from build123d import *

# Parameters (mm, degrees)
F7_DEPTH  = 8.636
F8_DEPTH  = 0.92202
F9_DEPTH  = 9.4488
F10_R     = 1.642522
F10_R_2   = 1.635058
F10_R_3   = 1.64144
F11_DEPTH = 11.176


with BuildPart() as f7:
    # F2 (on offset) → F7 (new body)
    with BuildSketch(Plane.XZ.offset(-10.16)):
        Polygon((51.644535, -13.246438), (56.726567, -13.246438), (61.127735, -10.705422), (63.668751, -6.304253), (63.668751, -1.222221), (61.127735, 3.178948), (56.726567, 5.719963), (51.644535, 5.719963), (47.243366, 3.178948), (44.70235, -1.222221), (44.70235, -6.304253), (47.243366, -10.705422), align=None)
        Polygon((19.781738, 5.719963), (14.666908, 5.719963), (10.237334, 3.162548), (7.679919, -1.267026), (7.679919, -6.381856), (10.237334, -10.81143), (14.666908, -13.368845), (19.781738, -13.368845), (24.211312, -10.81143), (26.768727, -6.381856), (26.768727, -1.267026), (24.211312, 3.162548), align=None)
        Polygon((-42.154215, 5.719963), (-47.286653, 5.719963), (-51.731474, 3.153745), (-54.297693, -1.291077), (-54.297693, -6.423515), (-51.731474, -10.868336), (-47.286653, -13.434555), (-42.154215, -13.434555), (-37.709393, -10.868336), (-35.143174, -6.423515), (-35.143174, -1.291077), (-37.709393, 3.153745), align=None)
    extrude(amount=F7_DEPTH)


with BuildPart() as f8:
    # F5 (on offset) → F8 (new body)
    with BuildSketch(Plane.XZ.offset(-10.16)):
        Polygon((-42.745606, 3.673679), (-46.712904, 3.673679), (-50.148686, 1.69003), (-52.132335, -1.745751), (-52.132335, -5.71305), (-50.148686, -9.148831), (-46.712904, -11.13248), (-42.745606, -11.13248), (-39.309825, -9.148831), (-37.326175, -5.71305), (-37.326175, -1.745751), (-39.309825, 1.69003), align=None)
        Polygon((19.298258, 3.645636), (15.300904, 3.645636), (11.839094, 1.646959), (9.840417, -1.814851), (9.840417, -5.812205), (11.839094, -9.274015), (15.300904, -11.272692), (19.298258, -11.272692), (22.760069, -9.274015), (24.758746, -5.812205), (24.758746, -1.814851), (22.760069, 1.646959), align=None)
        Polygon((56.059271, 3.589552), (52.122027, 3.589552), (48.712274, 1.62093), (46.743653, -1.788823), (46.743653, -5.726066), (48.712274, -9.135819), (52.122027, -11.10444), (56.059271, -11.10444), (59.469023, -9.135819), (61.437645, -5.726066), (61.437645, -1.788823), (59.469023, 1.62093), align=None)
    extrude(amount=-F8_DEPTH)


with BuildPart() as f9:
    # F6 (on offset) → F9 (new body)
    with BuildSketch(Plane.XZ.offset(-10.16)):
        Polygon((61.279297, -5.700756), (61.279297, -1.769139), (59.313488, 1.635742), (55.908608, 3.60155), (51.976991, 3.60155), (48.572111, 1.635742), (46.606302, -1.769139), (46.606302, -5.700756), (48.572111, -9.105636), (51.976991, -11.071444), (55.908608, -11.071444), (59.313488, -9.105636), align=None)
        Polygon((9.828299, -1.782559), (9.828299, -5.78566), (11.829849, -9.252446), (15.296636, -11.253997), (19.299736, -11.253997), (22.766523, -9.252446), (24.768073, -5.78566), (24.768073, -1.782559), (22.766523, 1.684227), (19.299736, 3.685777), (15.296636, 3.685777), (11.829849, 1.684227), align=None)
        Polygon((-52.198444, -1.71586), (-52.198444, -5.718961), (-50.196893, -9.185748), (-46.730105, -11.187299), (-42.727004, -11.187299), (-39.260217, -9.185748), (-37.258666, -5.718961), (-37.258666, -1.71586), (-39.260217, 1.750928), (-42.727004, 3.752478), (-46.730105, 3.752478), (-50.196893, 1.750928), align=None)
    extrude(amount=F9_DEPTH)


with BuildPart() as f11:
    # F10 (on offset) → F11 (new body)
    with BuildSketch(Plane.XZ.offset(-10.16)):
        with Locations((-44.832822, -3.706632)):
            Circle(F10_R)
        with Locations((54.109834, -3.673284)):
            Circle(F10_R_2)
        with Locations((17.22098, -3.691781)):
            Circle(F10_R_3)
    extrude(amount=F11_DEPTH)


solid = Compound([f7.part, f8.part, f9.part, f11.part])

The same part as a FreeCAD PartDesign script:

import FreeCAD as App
import Part
import Sketcher
from FreeCAD import Vector
Q = App.Units.Quantity

doc = App.newDocument("Part")
body = doc.addObject("PartDesign::Body", "Body")
body.AllowCompound = True

sketch1 = body.newObject("Sketcher::SketchObject", "Sketch")
sketch1.AttachmentSupport = (doc.getObject("XZ_Plane"), [""])
sketch1.MapMode = "FlatFace"
sketch1.AttachmentOffset = App.Placement(Vector(0, 0, -0.4 * 25.4), App.Rotation())
sketch1.addGeometry([
    Part.LineSegment(Vector(51.644535, -13.246438, 0), Vector(56.726567, -13.246438, 0)),
    Part.LineSegment(Vector(56.726567, -13.246438, 0), Vector(61.127735, -10.705422, 0)),
    Part.LineSegment(Vector(61.127735, -10.705422, 0), Vector(63.668751, -6.304253, 0)),
    Part.LineSegment(Vector(63.668751, -6.304253, 0), Vector(63.668751, -1.222221, 0)),
    Part.LineSegment(Vector(63.668751, -1.222221, 0), Vector(61.127735, 3.178948, 0)),
    Part.LineSegment(Vector(61.127735, 3.178948, 0), Vector(56.726567, 5.719963, 0)),
    Part.LineSegment(Vector(56.726567, 5.719963, 0), Vector(51.644535, 5.719963, 0)),
    Part.LineSegment(Vector(51.644535, 5.719963, 0), Vector(47.243366, 3.178948, 0)),
    Part.LineSegment(Vector(47.243366, 3.178948, 0), Vector(44.70235, -1.222221, 0)),
    Part.LineSegment(Vector(44.70235, -1.222221, 0), Vector(44.70235, -6.304253, 0)),
    Part.LineSegment(Vector(44.70235, -6.304253, 0), Vector(47.243366, -10.705422, 0)),
    Part.LineSegment(Vector(47.243366, -10.705422, 0), Vector(51.644535, -13.246438, 0)),
    Part.LineSegment(Vector(19.781738, 5.719963, 0), Vector(14.666908, 5.719963, 0)),
    Part.LineSegment(Vector(14.666908, 5.719963, 0), Vector(10.237334, 3.162548, 0)),
    Part.LineSegment(Vector(10.237334, 3.162548, 0), Vector(7.679919, -1.267026, 0)),
    Part.LineSegment(Vector(7.679919, -1.267026, 0), Vector(7.679919, -6.381856, 0)),
    Part.LineSegment(Vector(7.679919, -6.381856, 0), Vector(10.237334, -10.81143, 0)),
    Part.LineSegment(Vector(10.237334, -10.81143, 0), Vector(14.666908, -13.368845, 0)),
    Part.LineSegment(Vector(14.666908, -13.368845, 0), Vector(19.781738, -13.368845, 0)),
    Part.LineSegment(Vector(19.781738, -13.368845, 0), Vector(24.211312, -10.81143, 0)),
    Part.LineSegment(Vector(24.211312, -10.81143, 0), Vector(26.768727, -6.381856, 0)),
    Part.LineSegment(Vector(26.768727, -6.381856, 0), Vector(26.768727, -1.267026, 0)),
    Part.LineSegment(Vector(26.768727, -1.267026, 0), Vector(24.211312, 3.162548, 0)),
    Part.LineSegment(Vector(24.211312, 3.162548, 0), Vector(19.781738, 5.719963, 0)),
    Part.LineSegment(Vector(-42.154215, 5.719963, 0), Vector(-47.286653, 5.719963, 0)),
    Part.LineSegment(Vector(-47.286653, 5.719963, 0), Vector(-51.731474, 3.153745, 0)),
    Part.LineSegment(Vector(-51.731474, 3.153745, 0), Vector(-54.297693, -1.291077, 0)),
    Part.LineSegment(Vector(-54.297693, -1.291077, 0), Vector(-54.297693, -6.423515, 0)),
    Part.LineSegment(Vector(-54.297693, -6.423515, 0), Vector(-51.731474, -10.868336, 0)),
    Part.LineSegment(Vector(-51.731474, -10.868336, 0), Vector(-47.286653, -13.434555, 0)),
    Part.LineSegment(Vector(-47.286653, -13.434555, 0), Vector(-42.154215, -13.434555, 0)),
    Part.LineSegment(Vector(-42.154215, -13.434555, 0), Vector(-37.709393, -10.868336, 0)),
    Part.LineSegment(Vector(-37.709393, -10.868336, 0), Vector(-35.143174, -6.423515, 0)),
    Part.LineSegment(Vector(-35.143174, -6.423515, 0), Vector(-35.143174, -1.291077, 0)),
    Part.LineSegment(Vector(-35.143174, -1.291077, 0), Vector(-37.709393, 3.153745, 0)),
    Part.LineSegment(Vector(-37.709393, 3.153745, 0), Vector(-42.154215, 5.719963, 0)),
], False)
sketch1.addConstraint([
    Sketcher.Constraint("Coincident", 0, 2, 1, 1),
    Sketcher.Constraint("Coincident", 1, 2, 2, 1),
    Sketcher.Constraint("Coincident", 2, 2, 3, 1),
    Sketcher.Constraint("Coincident", 3, 2, 4, 1),
    Sketcher.Constraint("Coincident", 4, 2, 5, 1),
    Sketcher.Constraint("Coincident", 5, 2, 6, 1),
    Sketcher.Constraint("Coincident", 6, 2, 7, 1),
    Sketcher.Constraint("Coincident", 7, 2, 8, 1),
    Sketcher.Constraint("Coincident", 8, 2, 9, 1),
    Sketcher.Constraint("Coincident", 9, 2, 10, 1),
    Sketcher.Constraint("Coincident", 10, 2, 11, 1),
    Sketcher.Constraint("Coincident", 11, 2, 0, 1),
    Sketcher.Constraint("Coincident", 12, 2, 13, 1),
    Sketcher.Constraint("Coincident", 13, 2, 14, 1),
    Sketcher.Constraint("Coincident", 14, 2, 15, 1),
    Sketcher.Constraint("Coincident", 15, 2, 16, 1),
    Sketcher.Constraint("Coincident", 16, 2, 17, 1),
    Sketcher.Constraint("Coincident", 17, 2, 18, 1),
    Sketcher.Constraint("Coincident", 18, 2, 19, 1),
    Sketcher.Constraint("Coincident", 19, 2, 20, 1),
    Sketcher.Constraint("Coincident", 20, 2, 21, 1),
    Sketcher.Constraint("Coincident", 21, 2, 22, 1),
    Sketcher.Constraint("Coincident", 22, 2, 23, 1),
    Sketcher.Constraint("Coincident", 23, 2, 12, 1),
    Sketcher.Constraint("Coincident", 24, 2, 25, 1),
    Sketcher.Constraint("Coincident", 25, 2, 26, 1),
    Sketcher.Constraint("Coincident", 26, 2, 27, 1),
    Sketcher.Constraint("Coincident", 27, 2, 28, 1),
    Sketcher.Constraint("Coincident", 28, 2, 29, 1),
    Sketcher.Constraint("Coincident", 29, 2, 30, 1),
    Sketcher.Constraint("Coincident", 30, 2, 31, 1),
    Sketcher.Constraint("Coincident", 31, 2, 32, 1),
    Sketcher.Constraint("Coincident", 32, 2, 33, 1),
    Sketcher.Constraint("Coincident", 33, 2, 34, 1),
    Sketcher.Constraint("Coincident", 34, 2, 35, 1),
    Sketcher.Constraint("Coincident", 35, 2, 24, 1),
    Sketcher.Constraint("Horizontal", 0),
    Sketcher.Constraint("Vertical", 3),
    Sketcher.Constraint("Horizontal", 6),
    Sketcher.Constraint("Vertical", 9),
    Sketcher.Constraint("Horizontal", 12),
    Sketcher.Constraint("Vertical", 15),
    Sketcher.Constraint("Horizontal", 18),
    Sketcher.Constraint("Vertical", 21),
    Sketcher.Constraint("Horizontal", 24),
    Sketcher.Constraint("Vertical", 27),
    Sketcher.Constraint("Horizontal", 30),
    Sketcher.Constraint("Vertical", 33),
    Sketcher.Constraint("Perpendicular", 1, 4),
    Sketcher.Constraint("Perpendicular", 2, 5),
    Sketcher.Constraint("Perpendicular", 4, 7),
    Sketcher.Constraint("Perpendicular", 5, 8),
    Sketcher.Constraint("Perpendicular", 7, 10),
    Sketcher.Constraint("Perpendicular", 8, 11),
    Sketcher.Constraint("Perpendicular", 10, 13),
    Sketcher.Constraint("Perpendicular", 11, 14),
    Sketcher.Constraint("Perpendicular", 13, 16),
    Sketcher.Constraint("Perpendicular", 14, 17),
    Sketcher.Constraint("Perpendicular", 16, 19),
    Sketcher.Constraint("Perpendicular", 17, 20),
    Sketcher.Constraint("Perpendicular", 19, 22),
    Sketcher.Constraint("Perpendicular", 20, 23),
    Sketcher.Constraint("Perpendicular", 22, 25),
    Sketcher.Constraint("Perpendicular", 23, 26),
    Sketcher.Constraint("Perpendicular", 25, 28),
    Sketcher.Constraint("Perpendicular", 26, 29),
    Sketcher.Constraint("Perpendicular", 28, 31),
    Sketcher.Constraint("Perpendicular", 29, 32),
    Sketcher.Constraint("Perpendicular", 31, 34),
    Sketcher.Constraint("Perpendicular", 32, 35),
    Sketcher.Constraint("Horizontal", 4, 2, 7, 2),
    Sketcher.Constraint("Horizontal", 3, 2, 8, 2),
    Sketcher.Constraint("Horizontal", 2, 2, 9, 2),
    Sketcher.Constraint("Horizontal", 1, 2, 10, 2),
    Sketcher.Constraint("Horizontal", 6, 2, 12, 2),
    Sketcher.Constraint("Horizontal", 16, 2, 19, 2),
    Sketcher.Constraint("Horizontal", 15, 2, 20, 2),
    Sketcher.Constraint("Horizontal", 14, 2, 21, 2),
    Sketcher.Constraint("Horizontal", 13, 2, 22, 2),
    Sketcher.Constraint("Horizontal", 23, 2, 24, 2),
    Sketcher.Constraint("Horizontal", 28, 2, 31, 2),
    Sketcher.Constraint("Horizontal", 27, 2, 32, 2),
    Sketcher.Constraint("Horizontal", 26, 2, 33, 2),
    Sketcher.Constraint("Horizontal", 25, 2, 34, 2),
    Sketcher.Constraint("Vertical", 1, 2, 4, 2),
    Sketcher.Constraint("Vertical", 0, 2, 5, 2),
    Sketcher.Constraint("Vertical", 7, 2, 10, 2),
    Sketcher.Constraint("Vertical", 13, 2, 16, 2),
    Sketcher.Constraint("Vertical", 12, 2, 17, 2),
    Sketcher.Constraint("Vertical", 25, 2, 28, 2),
    Sketcher.Constraint("Vertical", 24, 2, 29, 2),
    Sketcher.Constraint("Equal", 6, 3),
    Sketcher.Constraint("Equal", 18, 15),
    Sketcher.Constraint("Equal", 30, 27),
    Sketcher.Constraint("Equal", 1, 2),
    Sketcher.Constraint("Equal", 13, 14),
    Sketcher.Constraint("Equal", 25, 26),
    Sketcher.Constraint("Angle", 1, Q("30.000005 deg")),
    Sketcher.Constraint("DistanceX", 12, 2, 12, 1, Q("5.11483 mm")),
    Sketcher.Constraint("DistanceX", 24, 2, 24, 1, Q("5.132438 mm")),
    Sketcher.Constraint("DistanceY", 1, 2, 3, 2, Q("9.483201 mm")),
    Sketcher.Constraint("DistanceY", 0, 2, 5, 2, Q("18.966401 mm")),
    Sketcher.Constraint("DistanceY", 9, 2, 13, 2, Q("9.466801 mm")),
    Sketcher.Constraint("DistanceY", 15, 2, 25, 2, Q("9.535601 mm")),
    Sketcher.Constraint("DistanceX", -1, 1, 2, 2, Q("63.668751 mm")),
    Sketcher.Constraint("DistanceY", 3, 2, -1, 1, Q("1.222221 mm")),
    Sketcher.Constraint("DistanceX", -1, 1, 14, 2, Q("7.679919 mm")),
    Sketcher.Constraint("DistanceX", 24, 2, 12, 2, Q("61.953561 mm")),
])
pad1 = body.newObject("PartDesign::Pad", "Pad")
pad1.Profile = sketch1
pad1.Length = Q("0.34 in")
body2 = doc.addObject("PartDesign::Body", "Body001")
body2.AllowCompound = True

sketch2 = body2.newObject("Sketcher::SketchObject", "Sketch001")
sketch2.AttachmentSupport = (doc.getObject("XZ_Plane001"), [""])
sketch2.MapMode = "FlatFace"
sketch2.AttachmentOffset = App.Placement(Vector(0, 0, -0.4 * 25.4), App.Rotation())
sketch2.addGeometry([
    Part.LineSegment(Vector(-42.745606, 3.673679, 0), Vector(-46.712904, 3.673679, 0)),
    Part.LineSegment(Vector(-46.712904, 3.673679, 0), Vector(-50.148686, 1.69003, 0)),
    Part.LineSegment(Vector(-50.148686, 1.69003, 0), Vector(-52.132335, -1.745751, 0)),
    Part.LineSegment(Vector(-52.132335, -1.745751, 0), Vector(-52.132335, -5.71305, 0)),
    Part.LineSegment(Vector(-52.132335, -5.71305, 0), Vector(-50.148686, -9.148831, 0)),
    Part.LineSegment(Vector(-50.148686, -9.148831, 0), Vector(-46.712904, -11.13248, 0)),
    Part.LineSegment(Vector(-46.712904, -11.13248, 0), Vector(-42.745606, -11.13248, 0)),
    Part.LineSegment(Vector(-42.745606, -11.13248, 0), Vector(-39.309825, -9.148831, 0)),
    Part.LineSegment(Vector(-39.309825, -9.148831, 0), Vector(-37.326175, -5.71305, 0)),
    Part.LineSegment(Vector(-37.326175, -5.71305, 0), Vector(-37.326175, -1.745751, 0)),
    Part.LineSegment(Vector(-37.326175, -1.745751, 0), Vector(-39.309825, 1.69003, 0)),
    Part.LineSegment(Vector(-39.309825, 1.69003, 0), Vector(-42.745606, 3.673679, 0)),
    Part.LineSegment(Vector(19.298258, 3.645636, 0), Vector(15.300904, 3.645636, 0)),
    Part.LineSegment(Vector(15.300904, 3.645636, 0), Vector(11.839094, 1.646959, 0)),
    Part.LineSegment(Vector(11.839094, 1.646959, 0), Vector(9.840417, -1.814851, 0)),
    Part.LineSegment(Vector(9.840417, -1.814851, 0), Vector(9.840417, -5.812205, 0)),
    Part.LineSegment(Vector(9.840417, -5.812205, 0), Vector(11.839094, -9.274015, 0)),
    Part.LineSegment(Vector(11.839094, -9.274015, 0), Vector(15.300904, -11.272692, 0)),
    Part.LineSegment(Vector(15.300904, -11.272692, 0), Vector(19.298258, -11.272692, 0)),
    Part.LineSegment(Vector(19.298258, -11.272692, 0), Vector(22.760069, -9.274015, 0)),
    Part.LineSegment(Vector(22.760069, -9.274015, 0), Vector(24.758746, -5.812205, 0)),
    Part.LineSegment(Vector(24.758746, -5.812205, 0), Vector(24.758746, -1.814851, 0)),
    Part.LineSegment(Vector(24.758746, -1.814851, 0), Vector(22.760069, 1.646959, 0)),
    Part.LineSegment(Vector(22.760069, 1.646959, 0), Vector(19.298258, 3.645636, 0)),
    Part.LineSegment(Vector(56.059271, 3.589552, 0), Vector(52.122027, 3.589552, 0)),
    Part.LineSegment(Vector(52.122027, 3.589552, 0), Vector(48.712274, 1.62093, 0)),
    Part.LineSegment(Vector(48.712274, 1.62093, 0), Vector(46.743653, -1.788823, 0)),
    Part.LineSegment(Vector(46.743653, -1.788823, 0), Vector(46.743653, -5.726066, 0)),
    Part.LineSegment(Vector(46.743653, -5.726066, 0), Vector(48.712274, -9.135819, 0)),
    Part.LineSegment(Vector(48.712274, -9.135819, 0), Vector(52.122027, -11.10444, 0)),
    Part.LineSegment(Vector(52.122027, -11.10444, 0), Vector(56.059271, -11.10444, 0)),
    Part.LineSegment(Vector(56.059271, -11.10444, 0), Vector(59.469023, -9.135819, 0)),
    Part.LineSegment(Vector(59.469023, -9.135819, 0), Vector(61.437645, -5.726066, 0)),
    Part.LineSegment(Vector(61.437645, -5.726066, 0), Vector(61.437645, -1.788823, 0)),
    Part.LineSegment(Vector(61.437645, -1.788823, 0), Vector(59.469023, 1.62093, 0)),
    Part.LineSegment(Vector(59.469023, 1.62093, 0), Vector(56.059271, 3.589552, 0)),
], False)
sketch2.addConstraint([
    Sketcher.Constraint("Coincident", 0, 2, 1, 1),
    Sketcher.Constraint("Coincident", 1, 2, 2, 1),
    Sketcher.Constraint("Coincident", 2, 2, 3, 1),
    Sketcher.Constraint("Coincident", 3, 2, 4, 1),
    Sketcher.Constraint("Coincident", 4, 2, 5, 1),
    Sketcher.Constraint("Coincident", 5, 2, 6, 1),
    Sketcher.Constraint("Coincident", 6, 2, 7, 1),
    Sketcher.Constraint("Coincident", 7, 2, 8, 1),
    Sketcher.Constraint("Coincident", 8, 2, 9, 1),
    Sketcher.Constraint("Coincident", 9, 2, 10, 1),
    Sketcher.Constraint("Coincident", 10, 2, 11, 1),
    Sketcher.Constraint("Coincident", 11, 2, 0, 1),
    Sketcher.Constraint("Coincident", 12, 2, 13, 1),
    Sketcher.Constraint("Coincident", 13, 2, 14, 1),
    Sketcher.Constraint("Coincident", 14, 2, 15, 1),
    Sketcher.Constraint("Coincident", 15, 2, 16, 1),
    Sketcher.Constraint("Coincident", 16, 2, 17, 1),
    Sketcher.Constraint("Coincident", 17, 2, 18, 1),
    Sketcher.Constraint("Coincident", 18, 2, 19, 1),
    Sketcher.Constraint("Coincident", 19, 2, 20, 1),
    Sketcher.Constraint("Coincident", 20, 2, 21, 1),
    Sketcher.Constraint("Coincident", 21, 2, 22, 1),
    Sketcher.Constraint("Coincident", 22, 2, 23, 1),
    Sketcher.Constraint("Coincident", 23, 2, 12, 1),
    Sketcher.Constraint("Coincident", 24, 2, 25, 1),
    Sketcher.Constraint("Coincident", 25, 2, 26, 1),
    Sketcher.Constraint("Coincident", 26, 2, 27, 1),
    Sketcher.Constraint("Coincident", 27, 2, 28, 1),
    Sketcher.Constraint("Coincident", 28, 2, 29, 1),
    Sketcher.Constraint("Coincident", 29, 2, 30, 1),
    Sketcher.Constraint("Coincident", 30, 2, 31, 1),
    Sketcher.Constraint("Coincident", 31, 2, 32, 1),
    Sketcher.Constraint("Coincident", 32, 2, 33, 1),
    Sketcher.Constraint("Coincident", 33, 2, 34, 1),
    Sketcher.Constraint("Coincident", 34, 2, 35, 1),
    Sketcher.Constraint("Coincident", 35, 2, 24, 1),
    Sketcher.Constraint("Horizontal", 0),
    Sketcher.Constraint("Vertical", 3),
    Sketcher.Constraint("Horizontal", 6),
    Sketcher.Constraint("Vertical", 9),
    Sketcher.Constraint("Horizontal", 12),
    Sketcher.Constraint("Vertical", 15),
    Sketcher.Constraint("Horizontal", 18),
    Sketcher.Constraint("Vertical", 21),
    Sketcher.Constraint("Horizontal", 24),
    Sketcher.Constraint("Vertical", 27),
    Sketcher.Constraint("Horizontal", 30),
    Sketcher.Constraint("Vertical", 33),
    Sketcher.Constraint("Perpendicular", 1, 4),
    Sketcher.Constraint("Perpendicular", 2, 5),
    Sketcher.Constraint("Perpendicular", 4, 7),
    Sketcher.Constraint("Perpendicular", 5, 8),
    Sketcher.Constraint("Perpendicular", 7, 10),
    Sketcher.Constraint("Perpendicular", 8, 11),
    Sketcher.Constraint("Perpendicular", 10, 13),
    Sketcher.Constraint("Perpendicular", 11, 14),
    Sketcher.Constraint("Perpendicular", 13, 16),
    Sketcher.Constraint("Perpendicular", 14, 17),
    Sketcher.Constraint("Perpendicular", 16, 19),
    Sketcher.Constraint("Perpendicular", 17, 20),
    Sketcher.Constraint("Perpendicular", 19, 22),
    Sketcher.Constraint("Perpendicular", 20, 23),
    Sketcher.Constraint("Perpendicular", 22, 25),
    Sketcher.Constraint("Perpendicular", 23, 26),
    Sketcher.Constraint("Perpendicular", 25, 28),
    Sketcher.Constraint("Perpendicular", 26, 29),
    Sketcher.Constraint("Perpendicular", 28, 31),
    Sketcher.Constraint("Perpendicular", 29, 32),
    Sketcher.Constraint("Perpendicular", 31, 34),
    Sketcher.Constraint("Perpendicular", 32, 35),
    Sketcher.Constraint("Horizontal", 4, 2, 7, 2),
    Sketcher.Constraint("Horizontal", 3, 2, 8, 2),
    Sketcher.Constraint("Horizontal", 2, 2, 9, 2),
    Sketcher.Constraint("Horizontal", 1, 2, 10, 2),
    Sketcher.Constraint("Horizontal", 16, 2, 19, 2),
    Sketcher.Constraint("Horizontal", 15, 2, 20, 2),
    Sketcher.Constraint("Horizontal", 14, 2, 21, 2),
    Sketcher.Constraint("Horizontal", 13, 2, 22, 2),
    Sketcher.Constraint("Horizontal", 28, 2, 31, 2),
    Sketcher.Constraint("Horizontal", 27, 2, 32, 2),
    Sketcher.Constraint("Horizontal", 26, 2, 33, 2),
    Sketcher.Constraint("Horizontal", 25, 2, 34, 2),
    Sketcher.Constraint("Vertical", 1, 2, 4, 2),
    Sketcher.Constraint("Vertical", 0, 2, 5, 2),
    Sketcher.Constraint("Vertical", 7, 2, 10, 2),
    Sketcher.Constraint("Vertical", 13, 2, 16, 2),
    Sketcher.Constraint("Vertical", 12, 2, 17, 2),
    Sketcher.Constraint("Vertical", 25, 2, 28, 2),
    Sketcher.Constraint("Vertical", 24, 2, 29, 2),
    Sketcher.Constraint("Equal", 6, 3),
    Sketcher.Constraint("Equal", 18, 15),
    Sketcher.Constraint("Equal", 30, 27),
    Sketcher.Constraint("Equal", 1, 2),
    Sketcher.Constraint("Equal", 13, 14),
    Sketcher.Constraint("Equal", 25, 26),
    Sketcher.Constraint("Angle", 1, Q("-150.000008 deg")),
    Sketcher.Constraint("DistanceY", 3, 2, 3, 1, Q("3.967299 mm")),
    Sketcher.Constraint("DistanceX", -1, 1, 31, 2, Q("2.3413001 in")),
    Sketcher.Constraint("Distance", 1, Q("3.967299 mm")),
    Sketcher.Constraint("DistanceY", 14, 2, 9, 2, Q("0.0691 mm")),
    Sketcher.Constraint("DistanceX", 12, 2, 12, 1, Q("3.997354 mm")),
    Sketcher.Constraint("DistanceX", 24, 2, 24, 1, Q("3.937244 mm")),
    Sketcher.Constraint("DistanceY", -1, 1, 0, 2, Q("3.673679 mm")),
    Sketcher.Constraint("DistanceY", -1, 1, 13, 2, Q("1.646959 mm")),
    Sketcher.Constraint("DistanceX", -1, 1, 18, 2, Q("19.298258 mm")),
    Sketcher.Constraint("DistanceY", -1, 1, 24, 2, Q("3.589552 mm")),
    Sketcher.Constraint("DistanceY", -1, 1, 25, 2, Q("1.62093 mm")),
    Sketcher.Constraint("DistanceX", 9, 2, 12, 2, Q("52.627079 mm")),
])
pad2 = body2.newObject("PartDesign::Pad", "Pad001")
pad2.Profile = sketch2
pad2.Length = Q("0.0363 in")
pad2.Reversed = True
body3 = doc.addObject("PartDesign::Body", "Body002")
body3.AllowCompound = True

sketch3 = body3.newObject("Sketcher::SketchObject", "Sketch002")
sketch3.AttachmentSupport = (doc.getObject("XZ_Plane002"), [""])
sketch3.MapMode = "FlatFace"
sketch3.AttachmentOffset = App.Placement(Vector(0, 0, -0.4 * 25.4), App.Rotation())
sketch3.addGeometry([
    Part.LineSegment(Vector(61.279297, -5.700756, 0), Vector(61.279297, -1.769139, 0)),
    Part.LineSegment(Vector(61.279297, -1.769139, 0), Vector(59.313488, 1.635742, 0)),
    Part.LineSegment(Vector(59.313488, 1.635742, 0), Vector(55.908608, 3.60155, 0)),
    Part.LineSegment(Vector(55.908608, 3.60155, 0), Vector(51.976991, 3.60155, 0)),
    Part.LineSegment(Vector(51.976991, 3.60155, 0), Vector(48.572111, 1.635742, 0)),
    Part.LineSegment(Vector(48.572111, 1.635742, 0), Vector(46.606302, -1.769139, 0)),
    Part.LineSegment(Vector(46.606302, -1.769139, 0), Vector(46.606302, -5.700756, 0)),
    Part.LineSegment(Vector(46.606302, -5.700756, 0), Vector(48.572111, -9.105636, 0)),
    Part.LineSegment(Vector(48.572111, -9.105636, 0), Vector(51.976991, -11.071444, 0)),
    Part.LineSegment(Vector(51.976991, -11.071444, 0), Vector(55.908608, -11.071444, 0)),
    Part.LineSegment(Vector(55.908608, -11.071444, 0), Vector(59.313488, -9.105636, 0)),
    Part.LineSegment(Vector(59.313488, -9.105636, 0), Vector(61.279297, -5.700756, 0)),
    Part.LineSegment(Vector(9.828299, -1.782559, 0), Vector(9.828299, -5.78566, 0)),
    Part.LineSegment(Vector(9.828299, -5.78566, 0), Vector(11.829849, -9.252446, 0)),
    Part.LineSegment(Vector(11.829849, -9.252446, 0), Vector(15.296636, -11.253997, 0)),
    Part.LineSegment(Vector(15.296636, -11.253997, 0), Vector(19.299736, -11.253997, 0)),
    Part.LineSegment(Vector(19.299736, -11.253997, 0), Vector(22.766523, -9.252446, 0)),
    Part.LineSegment(Vector(22.766523, -9.252446, 0), Vector(24.768073, -5.78566, 0)),
    Part.LineSegment(Vector(24.768073, -5.78566, 0), Vector(24.768073, -1.782559, 0)),
    Part.LineSegment(Vector(24.768073, -1.782559, 0), Vector(22.766523, 1.684227, 0)),
    Part.LineSegment(Vector(22.766523, 1.684227, 0), Vector(19.299736, 3.685777, 0)),
    Part.LineSegment(Vector(19.299736, 3.685777, 0), Vector(15.296636, 3.685777, 0)),
    Part.LineSegment(Vector(15.296636, 3.685777, 0), Vector(11.829849, 1.684227, 0)),
    Part.LineSegment(Vector(11.829849, 1.684227, 0), Vector(9.828299, -1.782559, 0)),
    Part.LineSegment(Vector(-52.198444, -1.71586, 0), Vector(-52.198444, -5.718961, 0)),
    Part.LineSegment(Vector(-52.198444, -5.718961, 0), Vector(-50.196893, -9.185748, 0)),
    Part.LineSegment(Vector(-50.196893, -9.185748, 0), Vector(-46.730105, -11.187299, 0)),
    Part.LineSegment(Vector(-46.730105, -11.187299, 0), Vector(-42.727004, -11.187299, 0)),
    Part.LineSegment(Vector(-42.727004, -11.187299, 0), Vector(-39.260217, -9.185748, 0)),
    Part.LineSegment(Vector(-39.260217, -9.185748, 0), Vector(-37.258666, -5.718961, 0)),
    Part.LineSegment(Vector(-37.258666, -5.718961, 0), Vector(-37.258666, -1.71586, 0)),
    Part.LineSegment(Vector(-37.258666, -1.71586, 0), Vector(-39.260217, 1.750928, 0)),
    Part.LineSegment(Vector(-39.260217, 1.750928, 0), Vector(-42.727004, 3.752478, 0)),
    Part.LineSegment(Vector(-42.727004, 3.752478, 0), Vector(-46.730105, 3.752478, 0)),
    Part.LineSegment(Vector(-46.730105, 3.752478, 0), Vector(-50.196893, 1.750928, 0)),
    Part.LineSegment(Vector(-50.196893, 1.750928, 0), Vector(-52.198444, -1.71586, 0)),
], False)
sketch3.addConstraint([
    Sketcher.Constraint("Coincident", 0, 2, 1, 1),
    Sketcher.Constraint("Coincident", 1, 2, 2, 1),
    Sketcher.Constraint("Coincident", 2, 2, 3, 1),
    Sketcher.Constraint("Coincident", 3, 2, 4, 1),
    Sketcher.Constraint("Coincident", 4, 2, 5, 1),
    Sketcher.Constraint("Coincident", 5, 2, 6, 1),
    Sketcher.Constraint("Coincident", 6, 2, 7, 1),
    Sketcher.Constraint("Coincident", 7, 2, 8, 1),
    Sketcher.Constraint("Coincident", 8, 2, 9, 1),
    Sketcher.Constraint("Coincident", 9, 2, 10, 1),
    Sketcher.Constraint("Coincident", 10, 2, 11, 1),
    Sketcher.Constraint("Coincident", 11, 2, 0, 1),
    Sketcher.Constraint("Coincident", 12, 2, 13, 1),
    Sketcher.Constraint("Coincident", 13, 2, 14, 1),
    Sketcher.Constraint("Coincident", 14, 2, 15, 1),
    Sketcher.Constraint("Coincident", 15, 2, 16, 1),
    Sketcher.Constraint("Coincident", 16, 2, 17, 1),
    Sketcher.Constraint("Coincident", 17, 2, 18, 1),
    Sketcher.Constraint("Coincident", 18, 2, 19, 1),
    Sketcher.Constraint("Coincident", 19, 2, 20, 1),
    Sketcher.Constraint("Coincident", 20, 2, 21, 1),
    Sketcher.Constraint("Coincident", 21, 2, 22, 1),
    Sketcher.Constraint("Coincident", 22, 2, 23, 1),
    Sketcher.Constraint("Coincident", 23, 2, 12, 1),
    Sketcher.Constraint("Coincident", 24, 2, 25, 1),
    Sketcher.Constraint("Coincident", 25, 2, 26, 1),
    Sketcher.Constraint("Coincident", 26, 2, 27, 1),
    Sketcher.Constraint("Coincident", 27, 2, 28, 1),
    Sketcher.Constraint("Coincident", 28, 2, 29, 1),
    Sketcher.Constraint("Coincident", 29, 2, 30, 1),
    Sketcher.Constraint("Coincident", 30, 2, 31, 1),
    Sketcher.Constraint("Coincident", 31, 2, 32, 1),
    Sketcher.Constraint("Coincident", 32, 2, 33, 1),
    Sketcher.Constraint("Coincident", 33, 2, 34, 1),
    Sketcher.Constraint("Coincident", 34, 2, 35, 1),
    Sketcher.Constraint("Coincident", 35, 2, 24, 1),
    Sketcher.Constraint("Vertical", 0),
    Sketcher.Constraint("Horizontal", 3),
    Sketcher.Constraint("Vertical", 6),
    Sketcher.Constraint("Horizontal", 9),
    Sketcher.Constraint("Vertical", 12),
    Sketcher.Constraint("Horizontal", 15),
    Sketcher.Constraint("Vertical", 18),
    Sketcher.Constraint("Horizontal", 21),
    Sketcher.Constraint("Vertical", 24),
    Sketcher.Constraint("Horizontal", 27),
    Sketcher.Constraint("Vertical", 30),
    Sketcher.Constraint("Horizontal", 33),
    Sketcher.Constraint("Perpendicular", 1, 4),
    Sketcher.Constraint("Perpendicular", 2, 5),
    Sketcher.Constraint("Perpendicular", 4, 7),
    Sketcher.Constraint("Perpendicular", 5, 8),
    Sketcher.Constraint("Perpendicular", 7, 10),
    Sketcher.Constraint("Perpendicular", 8, 11),
    Sketcher.Constraint("Perpendicular", 10, 13),
    Sketcher.Constraint("Perpendicular", 11, 14),
    Sketcher.Constraint("Perpendicular", 13, 16),
    Sketcher.Constraint("Perpendicular", 14, 17),
    Sketcher.Constraint("Perpendicular", 16, 19),
    Sketcher.Constraint("Perpendicular", 17, 20),
    Sketcher.Constraint("Perpendicular", 19, 22),
    Sketcher.Constraint("Perpendicular", 20, 23),
    Sketcher.Constraint("Perpendicular", 22, 25),
    Sketcher.Constraint("Perpendicular", 23, 26),
    Sketcher.Constraint("Perpendicular", 25, 28),
    Sketcher.Constraint("Perpendicular", 26, 29),
    Sketcher.Constraint("Perpendicular", 28, 31),
    Sketcher.Constraint("Perpendicular", 29, 32),
    Sketcher.Constraint("Perpendicular", 31, 34),
    Sketcher.Constraint("Perpendicular", 32, 35),
    Sketcher.Constraint("Horizontal", 1, 2, 4, 2),
    Sketcher.Constraint("Horizontal", 0, 2, 5, 2),
    Sketcher.Constraint("Horizontal", 7, 2, 10, 2),
    Sketcher.Constraint("Horizontal", 6, 2, 11, 2),
    Sketcher.Constraint("Horizontal", 13, 2, 16, 2),
    Sketcher.Constraint("Horizontal", 12, 2, 17, 2),
    Sketcher.Constraint("Horizontal", 19, 2, 22, 2),
    Sketcher.Constraint("Horizontal", 18, 2, 23, 2),
    Sketcher.Constraint("Horizontal", 25, 2, 28, 2),
    Sketcher.Constraint("Horizontal", 24, 2, 29, 2),
    Sketcher.Constraint("Horizontal", 31, 2, 34, 2),
    Sketcher.Constraint("Horizontal", 30, 2, 35, 2),
    Sketcher.Constraint("Vertical", 4, 2, 7, 2),
    Sketcher.Constraint("Vertical", 3, 2, 8, 2),
    Sketcher.Constraint("Vertical", 2, 2, 9, 2),
    Sketcher.Constraint("Vertical", 16, 2, 19, 2),
    Sketcher.Constraint("Vertical", 15, 2, 20, 2),
    Sketcher.Constraint("Vertical", 28, 2, 31, 2),
    Sketcher.Constraint("Vertical", 27, 2, 32, 2),
    Sketcher.Constraint("Equal", 21, 27),
    Sketcher.Constraint("Equal", 9, 0),
    Sketcher.Constraint("Equal", 33, 12),
    Sketcher.Constraint("Equal", 18, 24),
    Sketcher.Constraint("Equal", 1, 2),
    Sketcher.Constraint("Equal", 13, 14),
    Sketcher.Constraint("Equal", 23, 25),
    Sketcher.Constraint("Equal", 25, 26),
    Sketcher.Constraint("Angle", 1, Q("120 deg")),
    Sketcher.Constraint("DistanceX", 15, 1, 15, 2, Q("4.0031 mm")),
    Sketcher.Constraint("Distance", 13, Q("4.0031 mm")),
    Sketcher.Constraint("DistanceX", -1, 1, 12, 2, Q("9.828299 mm")),
    Sketcher.Constraint("DistanceY", 26, 2, -1, 1, Q("11.187299 mm")),
    Sketcher.Constraint("DistanceY", 6, 2, 4, 2, Q("7.336498 mm")),
    Sketcher.Constraint("DistanceY", 12, 2, 24, 2, Q("0.066699 mm")),
    Sketcher.Constraint("DistanceX", 3, 2, 3, 1, Q("3.931617 mm")),
    Sketcher.Constraint("DistanceY", 0, 2, -1, 1, Q("1.769139 mm")),
    Sketcher.Constraint("DistanceX", -1, 1, 3, 2, Q("51.976991 mm")),
    Sketcher.Constraint("DistanceX", 24, 2, 14, 2, Q("67.49508 mm")),
])
pad3 = body3.newObject("PartDesign::Pad", "Pad002")
pad3.Profile = sketch3
pad3.Length = Q("0.372 in")
body4 = doc.addObject("PartDesign::Body", "Body003")
body4.AllowCompound = True

sketch4 = body4.newObject("Sketcher::SketchObject", "Sketch003")
sketch4.AttachmentSupport = (doc.getObject("XZ_Plane003"), [""])
sketch4.MapMode = "FlatFace"
sketch4.AttachmentOffset = App.Placement(Vector(0, 0, -0.4 * 25.4), App.Rotation())
sketch4.addGeometry([
    Part.Circle(Vector(-44.832822, -3.706632, 0), Vector(0, 0, 1), 1.642522),
    Part.Circle(Vector(54.109834, -3.673284, 0), Vector(0, 0, 1), 1.635058),
    Part.Circle(Vector(17.22098, -3.691781, 0), Vector(0, 0, 1), 1.64144),
], False)
sketch4.addConstraint([
    Sketcher.Constraint("Diameter", 2, Q("3.28288 mm")),
    Sketcher.Constraint("Diameter", 0, Q("3.285044 mm")),
    Sketcher.Constraint("Diameter", 1, Q("3.270116 mm")),
    Sketcher.Constraint("DistanceY", 0, 3, -1, 1, Q("3.706632 mm")),
    Sketcher.Constraint("DistanceX", -1, 1, 2, 3, Q("17.22098 mm")),
    Sketcher.Constraint("DistanceY", 2, 3, -1, 1, Q("3.691781 mm")),
    Sketcher.Constraint("DistanceX", 0, 3, -1, 1, Q("44.832822 mm")),
    Sketcher.Constraint("DistanceX", -1, 1, 1, 3, Q("54.109834 mm")),
    Sketcher.Constraint("DistanceY", 1, 3, -1, 1, Q("3.673284 mm")),
])
pad4 = body4.newObject("PartDesign::Pad", "Pad003")
pad4.Profile = sketch4
pad4.Length = Q("0.44 in")

doc.recompute()
